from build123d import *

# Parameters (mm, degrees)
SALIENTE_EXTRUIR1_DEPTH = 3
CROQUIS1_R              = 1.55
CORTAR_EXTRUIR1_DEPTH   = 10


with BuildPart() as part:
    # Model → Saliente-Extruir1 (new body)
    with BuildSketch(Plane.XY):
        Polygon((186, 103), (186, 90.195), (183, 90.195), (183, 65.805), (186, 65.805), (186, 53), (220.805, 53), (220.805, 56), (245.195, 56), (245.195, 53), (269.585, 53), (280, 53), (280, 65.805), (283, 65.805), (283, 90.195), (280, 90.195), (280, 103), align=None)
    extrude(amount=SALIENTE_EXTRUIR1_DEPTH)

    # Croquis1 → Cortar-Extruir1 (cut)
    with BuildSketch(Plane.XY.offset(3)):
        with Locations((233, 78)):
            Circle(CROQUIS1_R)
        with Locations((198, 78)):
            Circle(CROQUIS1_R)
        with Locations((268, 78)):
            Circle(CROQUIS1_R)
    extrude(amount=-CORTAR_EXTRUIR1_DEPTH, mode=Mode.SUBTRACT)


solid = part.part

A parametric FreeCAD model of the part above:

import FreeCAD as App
import Part
import Sketcher

V = App.Vector


def add_polygon(sketch, points):
    """Adds a closed chain of lines whose ends are joined by coincident constraints."""
    first, n = sketch.GeometryCount, len(points)
    for a, b in zip(points, points[1:] + points[:1]):
        sketch.addGeometry(Part.LineSegment(App.Vector(*a, 0), App.Vector(*b, 0)), False)
    for i in range(n):
        sketch.addConstraint(Sketcher.Constraint("Coincident", first + i, 2, first + (i + 1) % n, 1))

doc = App.newDocument("Part")
body = doc.addObject("PartDesign::Body", "Body")

# Sketch on XY plane
sketch1 = doc.addObject("Sketcher::SketchObject", "Sketch")
body.addObject(sketch1)
sketch1.AttachmentSupport = (doc.XY_Plane, [""])
sketch1.MapMode = "FlatFace"
add_polygon(sketch1, [(186, 103), (186, 90.2), (183, 90.2), (183, 65.8), (186, 65.8), (186, 53), (220.8, 53), (220.8, 56), (245.2, 56), (245.2, 53), (280, 53), (280, 65.8), (283, 65.8), (283, 90.2), (280, 90.2), (280, 103)])  # lines 0-15
sketch1.addConstraint([
    Sketcher.Constraint("Vertical", 0),
    Sketcher.Constraint("Horizontal", 1),
    Sketcher.Constraint("Vertical", 2),
    Sketcher.Constraint("Horizontal", 3),
    Sketcher.Constraint("Vertical", 4),
    Sketcher.Constraint("Horizontal", 5),
    Sketcher.Constraint("Vertical", 6),
    Sketcher.Constraint("Horizontal", 7),
    Sketcher.Constraint("Vertical", 8),
    Sketcher.Constraint("Horizontal", 9),
    Sketcher.Constraint("Vertical", 10),
    Sketcher.Constraint("Horizontal", 11),
    Sketcher.Constraint("Vertical", 12),
    Sketcher.Constraint("Horizontal", 13),
    Sketcher.Constraint("Vertical", 14),
    Sketcher.Constraint("Horizontal", 15),
    Sketcher.Constraint("Horizontal", 5, 2, 8, 2),
    Sketcher.Constraint("Horizontal", 3, 2, 10, 2),
    Sketcher.Constraint("Horizontal", 1, 2, 12, 2),
    Sketcher.Constraint("Vertical", 0, 2, 3, 2),
    Sketcher.Constraint("Vertical", 10, 2, 13, 2),
    Sketcher.Constraint("Equal", 5, 9),
    Sketcher.Constraint("Equal", 3, 11),
    Sketcher.Constraint("Equal", 7, 2),
    Sketcher.Constraint("Equal", 0, 4),
    Sketcher.Constraint("Equal", 13, 6),
    Sketcher.Constraint("DistanceX", 1, 2, 1, 1, 3.0),
    Sketcher.Constraint("DistanceX", 15, 2, 15, 1, 94.0),
    Sketcher.Constraint("DistanceX", -1, 1, 0, 2, 186.0),
    Sketcher.Constraint("DistanceY", -1, 1, 4, 2, 53.0),
    Sketcher.Constraint("DistanceY", -1, 1, 14, 2, 103.0),
    Sketcher.Constraint("DistanceX", 7, 1, 7, 2, 24.39),
])
pad1 = doc.addObject("PartDesign::Pad", "Pad")
body.addObject(pad1)
pad1.Profile = sketch1
pad1.Length = 3

# Sketch on XY plane
sketch2 = doc.addObject("Sketcher::SketchObject", "Sketch001")
body.addObject(sketch2)
sketch2.AttachmentSupport = (doc.XY_Plane, [""])
sketch2.MapMode = "FlatFace"
sketch2.AttachmentOffset = App.Placement(V(0, 0, 3), App.Rotation())
sketch2.addGeometry([
    Part.Circle(V(233, 78, 0), V(0, 0, 1), 1.6),
    Part.Circle(V(198, 78, 0), V(0, 0, 1), 1.6),
    Part.Circle(V(268, 78, 0), V(0, 0, 1), 1.6),
], False)
sketch2.addConstraint([
    Sketcher.Constraint("Equal", 0, 1),
    Sketcher.Constraint("Equal", 1, 2),
    Sketcher.Constraint("Horizontal", 0, 3, 1, 3),
    Sketcher.Constraint("Horizontal", 1, 3, 2, 3),
    Sketcher.Constraint("Diameter", 0, 3.1),
    Sketcher.Constraint("DistanceX", -1, 1, 0, 3, 233.0),
    Sketcher.Constraint("DistanceY", -1, 1, 0, 3, 78.0),
    Sketcher.Constraint("DistanceX", -1, 1, 1, 3, 198.0),
    Sketcher.Constraint("DistanceX", -1, 1, 2, 3, 268.0),
])
pocket1 = doc.addObject("PartDesign::Pocket", "Pocket")
body.addObject(pocket1)
pocket1.Profile = sketch2
pocket1.Length = 10

doc.recompute()
